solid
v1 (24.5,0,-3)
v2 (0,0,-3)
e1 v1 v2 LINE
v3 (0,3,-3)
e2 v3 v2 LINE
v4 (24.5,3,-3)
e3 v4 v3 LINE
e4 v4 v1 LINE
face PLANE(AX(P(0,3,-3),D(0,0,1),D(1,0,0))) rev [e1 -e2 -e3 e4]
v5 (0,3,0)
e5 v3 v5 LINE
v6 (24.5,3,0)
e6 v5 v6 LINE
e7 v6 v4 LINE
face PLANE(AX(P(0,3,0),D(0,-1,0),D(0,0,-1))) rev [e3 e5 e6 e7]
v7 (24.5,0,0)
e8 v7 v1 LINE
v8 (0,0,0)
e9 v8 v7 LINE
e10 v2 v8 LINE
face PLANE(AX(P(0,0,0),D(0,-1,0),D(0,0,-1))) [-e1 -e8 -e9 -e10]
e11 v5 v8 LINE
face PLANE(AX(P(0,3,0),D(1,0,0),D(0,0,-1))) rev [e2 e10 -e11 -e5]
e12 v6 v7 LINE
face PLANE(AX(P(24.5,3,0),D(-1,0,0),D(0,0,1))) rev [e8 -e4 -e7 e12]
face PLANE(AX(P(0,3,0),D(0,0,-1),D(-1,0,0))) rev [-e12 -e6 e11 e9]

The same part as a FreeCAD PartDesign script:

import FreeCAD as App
import Part
import Sketcher
from FreeCAD import Vector


def add_polygon(sketch, points):
    """Adds a closed chain of lines whose ends are joined by coincident constraints."""
    first, n = sketch.GeometryCount, len(points)
    for a, b in zip(points, points[1:] + points[:1]):
        sketch.addGeometry(Part.LineSegment(App.Vector(*a, 0), App.Vector(*b, 0)), False)
    for i in range(n):
        sketch.addConstraint(Sketcher.Constraint("Coincident", first + i, 2, first + (i + 1) % n, 1))

doc = App.newDocument("Part")
body = doc.addObject("PartDesign::Body", "Body")

# Sketch on XZ plane
sketch1 = body.newObject("Sketcher::SketchObject", "Sketch")
sketch1.AttachmentSupport = (doc.getObject("XZ_Plane"), [""])
sketch1.MapMode = "FlatFace"
add_polygon(sketch1, [(0, -3), (0, 0), (24.5, 0), (24.5, -3)])  # lines 0-3
sketch1.addConstraint([
    Sketcher.Constraint("Vertical", 0),
    Sketcher.Constraint("Horizontal", 1),
    Sketcher.Constraint("Vertical", 2),
    Sketcher.Constraint("Horizontal", 3),
    Sketcher.Constraint("Coincident", 0, 2, -1, 1),
    Sketcher.Constraint("DistanceY", 0, 1, 0, 2, 3.0),
    Sketcher.Constraint("DistanceX", 1, 1, 1, 2, 24.5),
])
pad1 = body.newObject("PartDesign::Pad", "Pad")
pad1.Profile = sketch1
pad1.Length = 3
pad1.Reversed = True

doc.recompute()
